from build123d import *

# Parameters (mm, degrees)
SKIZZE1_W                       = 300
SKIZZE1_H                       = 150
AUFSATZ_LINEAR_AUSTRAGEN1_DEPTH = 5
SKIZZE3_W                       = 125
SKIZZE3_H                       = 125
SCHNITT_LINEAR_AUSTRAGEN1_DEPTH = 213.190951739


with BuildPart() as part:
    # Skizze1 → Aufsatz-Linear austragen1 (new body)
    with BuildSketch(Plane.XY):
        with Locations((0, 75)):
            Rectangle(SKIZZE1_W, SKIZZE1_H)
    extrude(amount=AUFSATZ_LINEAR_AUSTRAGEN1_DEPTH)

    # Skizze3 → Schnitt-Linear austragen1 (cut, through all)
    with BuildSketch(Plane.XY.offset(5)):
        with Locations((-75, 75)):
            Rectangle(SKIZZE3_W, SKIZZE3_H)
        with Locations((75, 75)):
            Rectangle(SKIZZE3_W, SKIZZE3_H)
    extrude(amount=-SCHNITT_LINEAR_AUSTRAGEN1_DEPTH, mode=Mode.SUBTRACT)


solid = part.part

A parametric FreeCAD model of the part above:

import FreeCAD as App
import Part
import Sketcher
from FreeCAD import Vector


def add_polygon(sketch, points):
    """Adds a closed chain of lines whose ends are joined by coincident constraints."""
    first, n = sketch.GeometryCount, len(points)
    for a, b in zip(points, points[1:] + points[:1]):
        sketch.addGeometry(Part.LineSegment(App.Vector(*a, 0), App.Vector(*b, 0)), False)
    for i in range(n):
        sketch.addConstraint(Sketcher.Constraint("Coincident", first + i, 2, first + (i + 1) % n, 1))

doc = App.newDocument("Part")
body = doc.addObject("PartDesign::Body", "Body")

# Sketch on XY plane
sketch1 = body.newObject("Sketcher::SketchObject", "Sketch")
sketch1.AttachmentSupport = (doc.getObject("XY_Plane"), [""])
sketch1.MapMode = "FlatFace"
add_polygon(sketch1, [(-150, 150), (-150, 0), (150, 0), (150, 150)])  # lines 0-3
sketch1.addConstraint(Sketcher.Constraint("Vertical", 0))
sketch1.addConstraint(Sketcher.Constraint("Horizontal", 1))
sketch1.addConstraint(Sketcher.Constraint("Vertical", 2))
sketch1.addConstraint(Sketcher.Constraint("Horizontal", 3))
sketch1.addConstraint(Sketcher.Constraint("Symmetric", 0, 2, 1, 2, -1, 1))
sketch1.addConstraint(Sketcher.Constraint("DistanceX", 1, 1, 1, 2, 300.0))
sketch1.addConstraint(Sketcher.Constraint("DistanceY", 0, 2, 0, 1, 150.0))
pad1 = body.newObject("PartDesign::Pad", "Pad")
pad1.Profile = sketch1
pad1.Length = 5

# Sketch on XY plane
sketch2 = body.newObject("Sketcher::SketchObject", "Sketch001")
sketch2.AttachmentSupport = (doc.getObject("XY_Plane"), [""])
sketch2.MapMode = "FlatFace"
sketch2.AttachmentOffset = App.Placement(Vector(0, 0, 5), App.Rotation())
add_polygon(sketch2, [(-138, 138), (-138, 12), (-12, 12), (-12, 138)])  # lines 0-3
add_polygon(sketch2, [(12, 138), (12, 12), (138, 12), (138, 138)])  # lines 4-7
sketch2.addConstraint(Sketcher.Constraint("Vertical", 0))
sketch2.addConstraint(Sketcher.Constraint("Horizontal", 1))
sketch2.addConstraint(Sketcher.Constraint("Vertical", 2))
sketch2.addConstraint(Sketcher.Constraint("Horizontal", 3))
sketch2.addConstraint(Sketcher.Constraint("Vertical", 4))
sketch2.addConstraint(Sketcher.Constraint("Horizontal", 5))
sketch2.addConstraint(Sketcher.Constraint("Vertical", 6))
sketch2.addConstraint(Sketcher.Constraint("Horizontal", 7))
sketch2.addConstraint(Sketcher.Constraint("Symmetric", 1, 2, 4, 2, -2))
sketch2.addConstraint(Sketcher.Constraint("Symmetric", 3, 2, 6, 2, -2))
sketch2.addConstraint(Sketcher.Constraint("Equal", 7, 0))
sketch2.addConstraint(Sketcher.Constraint("DistanceX", 1, 1, 1, 2, 125.0))
sketch2.addConstraint(Sketcher.Constraint("DistanceX", 1, 2, 4, 2, 25.0))
sketch2.addConstraint(Sketcher.Constraint("DistanceY", -1, 1, 0, 2, 12.5))
pocket1 = body.newObject("PartDesign::Pocket", "Pocket")
pocket1.Profile = sketch2
pocket1.Type = "ThroughAll"

doc.recompute()
